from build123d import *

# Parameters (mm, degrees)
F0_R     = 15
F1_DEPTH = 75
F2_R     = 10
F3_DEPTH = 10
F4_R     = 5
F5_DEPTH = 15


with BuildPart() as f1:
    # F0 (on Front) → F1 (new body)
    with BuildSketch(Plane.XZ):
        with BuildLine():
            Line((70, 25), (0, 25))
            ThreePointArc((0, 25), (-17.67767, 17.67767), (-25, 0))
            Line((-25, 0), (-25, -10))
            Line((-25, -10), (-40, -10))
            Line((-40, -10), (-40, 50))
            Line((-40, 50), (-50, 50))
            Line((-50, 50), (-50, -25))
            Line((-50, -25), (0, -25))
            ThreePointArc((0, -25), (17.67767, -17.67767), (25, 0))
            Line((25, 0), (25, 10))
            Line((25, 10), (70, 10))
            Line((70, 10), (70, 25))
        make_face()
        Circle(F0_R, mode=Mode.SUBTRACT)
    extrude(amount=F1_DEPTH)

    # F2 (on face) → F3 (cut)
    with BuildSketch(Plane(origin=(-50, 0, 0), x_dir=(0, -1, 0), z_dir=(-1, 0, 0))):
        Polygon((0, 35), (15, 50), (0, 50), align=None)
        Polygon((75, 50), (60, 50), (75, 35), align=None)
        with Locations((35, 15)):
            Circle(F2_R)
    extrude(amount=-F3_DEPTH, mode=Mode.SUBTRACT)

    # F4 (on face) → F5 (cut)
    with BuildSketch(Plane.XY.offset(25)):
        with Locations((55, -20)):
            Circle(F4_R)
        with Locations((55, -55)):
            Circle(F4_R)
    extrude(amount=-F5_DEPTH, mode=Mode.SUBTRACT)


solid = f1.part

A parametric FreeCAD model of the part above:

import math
import FreeCAD as App
import Part
import Sketcher

V = App.Vector
Q = App.Units.Quantity


def add_polygon(sketch, points):
    """Adds a closed chain of lines whose ends are joined by coincident constraints."""
    first, n = sketch.GeometryCount, len(points)
    for a, b in zip(points, points[1:] + points[:1]):
        sketch.addGeometry(Part.LineSegment(App.Vector(*a, 0), App.Vector(*b, 0)), False)
    for i in range(n):
        sketch.addConstraint(Sketcher.Constraint("Coincident", first + i, 2, first + (i + 1) % n, 1))

doc = App.newDocument("Part")
body = doc.addObject("PartDesign::Body", "Body")

sketch1 = body.newObject("Sketcher::SketchObject", "Sketch")
sketch1.AttachmentSupport = (doc.getObject("XZ_Plane"), [""])
sketch1.MapMode = "FlatFace"
sketch1.addGeometry([
    Part.LineSegment(V(70, 25, 0), V(0, 25, 0)),
    Part.ArcOfCircle(Part.Circle(V(0, 0, 0), V(0, 0, 1), 25), math.radians(90), math.radians(180)),
    Part.LineSegment(V(-25, 0, 0), V(-25, -10, 0)),
    Part.LineSegment(V(-25, -10, 0), V(-40, -10, 0)),
    Part.LineSegment(V(-40, -10, 0), V(-40, 50, 0)),
    Part.LineSegment(V(-40, 50, 0), V(-50, 50, 0)),
    Part.LineSegment(V(-50, 50, 0), V(-50, -25, 0)),
    Part.LineSegment(V(-50, -25, 0), V(0, -25, 0)),
    Part.ArcOfCircle(Part.Circle(V(0, 0, 0), V(0, 0, 1), 25), math.radians(-90), math.radians(0)),
    Part.LineSegment(V(25, 0, 0), V(25, 10, 0)),
    Part.LineSegment(V(25, 10, 0), V(70, 10, 0)),
    Part.LineSegment(V(70, 10, 0), V(70, 25, 0)),
    Part.Circle(V(0, 0, 0), V(0, 0, 1), 15),
], False)
sketch1.addConstraint([
    Sketcher.Constraint("Tangent", 0, 2, 1, 1),
    Sketcher.Constraint("Tangent", 1, 2, 2, 1),
    Sketcher.Constraint("Coincident", 2, 2, 3, 1),
    Sketcher.Constraint("Coincident", 3, 2, 4, 1),
    Sketcher.Constraint("Coincident", 4, 2, 5, 1),
    Sketcher.Constraint("Coincident", 5, 2, 6, 1),
    Sketcher.Constraint("Coincident", 6, 2, 7, 1),
    Sketcher.Constraint("Tangent", 7, 2, 8, 1),
    Sketcher.Constraint("Tangent", 8, 2, 9, 1),
    Sketcher.Constraint("Coincident", 9, 2, 10, 1),
    Sketcher.Constraint("Coincident", 10, 2, 11, 1),
    Sketcher.Constraint("Coincident", 11, 2, 0, 1),
    Sketcher.Constraint("Horizontal", 0),
    Sketcher.Constraint("Vertical", 2),
    Sketcher.Constraint("Horizontal", 3),
    Sketcher.Constraint("Vertical", 4),
    Sketcher.Constraint("Horizontal", 5),
    Sketcher.Constraint("Vertical", 6),
    Sketcher.Constraint("Horizontal", 7),
    Sketcher.Constraint("Vertical", 9),
    Sketcher.Constraint("Horizontal", 10),
    Sketcher.Constraint("Vertical", 11),
    Sketcher.Constraint("Coincident", 1, 3, -1, 1),
    Sketcher.Constraint("Coincident", 8, 3, -1, 1),
    Sketcher.Constraint("Coincident", 12, 3, -1, 1),
    Sketcher.Constraint("Equal", 1, 8),
    Sketcher.Constraint("Equal", 5, 2),
    Sketcher.Constraint("Equal", 2, 9),
    Sketcher.Constraint("Equal", 3, 11),
    Sketcher.Constraint("Diameter", 12, Q("30 mm")),
    Sketcher.Constraint("Radius", 1, Q("24.999998 mm")),
    Sketcher.Constraint("DistanceX", 0, 2, 0, 1, Q("70 mm")),
    Sketcher.Constraint("DistanceX", 3, 2, 3, 1, Q("15 mm")),
    Sketcher.Constraint("DistanceY", 4, 1, 4, 2, Q("60 mm")),
])
pad1 = body.newObject("PartDesign::Pad", "Pad")
pad1.Profile = sketch1
pad1.Length = 75

sketch2 = body.newObject("Sketcher::SketchObject", "Sketch001")
sketch2.AttachmentSupport = (doc.getObject("YZ_Plane"), [""])
sketch2.MapMode = "FlatFace"
sketch2.AttachmentOffset = App.Placement(V(0, 0, -50), App.Rotation())
add_polygon(sketch2, [(0, 35), (-15, 50), (0, 50)])
add_polygon(sketch2, [(-75, 50), (-60, 50), (-75, 35)])
sketch2.addGeometry(Part.Circle(V(-35, 15, 0), V(0, 0, 1), 10), False)
sketch2.addConstraint([
    Sketcher.Constraint("Horizontal", 1),
    Sketcher.Constraint("Vertical", 2),
    Sketcher.Constraint("Horizontal", 3),
    Sketcher.Constraint("Vertical", 5),
    Sketcher.Constraint("PointOnObject", 1, 2, -2),
    Sketcher.Constraint("Perpendicular", 0, 4),
    Sketcher.Constraint("Horizontal", 1, 2, 3, 2),
    Sketcher.Constraint("Horizontal", 2, 2, 4, 2),
    Sketcher.Constraint("Equal", 1, 3),
    Sketcher.Constraint("Diameter", 6, Q("20 mm")),
    Sketcher.Constraint("DistanceX", 1, 1, 1, 2, Q("15 mm")),
    Sketcher.Constraint("DistanceX", 6, 3, -1, 1, Q("35 mm")),
    Sketcher.Constraint("DistanceY", -1, 1, 6, 3, Q("15 mm")),
    Sketcher.Constraint("DistanceY", -1, 1, 0, 2, Q("50 mm")),
    Sketcher.Constraint("DistanceX", 3, 2, -1, 1, Q("60 mm")),
])
pocket1 = body.newObject("PartDesign::Pocket", "Pocket")
pocket1.Profile = sketch2
pocket1.Length = 10
pocket1.Reversed = True

sketch3 = body.newObject("Sketcher::SketchObject", "Sketch002")
sketch3.AttachmentSupport = (doc.getObject("XY_Plane"), [""])
sketch3.MapMode = "FlatFace"
sketch3.AttachmentOffset = App.Placement(V(0, 0, 25), App.Rotation())
sketch3.addGeometry([
    Part.Circle(V(55, -20, 0), V(0, 0, 1), 5),
    Part.Circle(V(55, -55, 0), V(0, 0, 1), 5),
], False)
sketch3.addConstraint([
    Sketcher.Constraint("Equal", 0, 1),
    Sketcher.Constraint("Vertical", 0, 3, 1, 3),
    Sketcher.Constraint("Diameter", 0, Q("10 mm")),
    Sketcher.Constraint("DistanceX", -1, 1, 0, 3, Q("55 mm")),
    Sketcher.Constraint("DistanceY", 0, 3, -1, 1, Q("20 mm")),
    Sketcher.Constraint("DistanceY", 1, 3, -1, 1, Q("55 mm")),
])
pocket2 = body.newObject("PartDesign::Pocket", "Pocket001")
pocket2.Profile = sketch3
pocket2.Length = 15

doc.recompute()
